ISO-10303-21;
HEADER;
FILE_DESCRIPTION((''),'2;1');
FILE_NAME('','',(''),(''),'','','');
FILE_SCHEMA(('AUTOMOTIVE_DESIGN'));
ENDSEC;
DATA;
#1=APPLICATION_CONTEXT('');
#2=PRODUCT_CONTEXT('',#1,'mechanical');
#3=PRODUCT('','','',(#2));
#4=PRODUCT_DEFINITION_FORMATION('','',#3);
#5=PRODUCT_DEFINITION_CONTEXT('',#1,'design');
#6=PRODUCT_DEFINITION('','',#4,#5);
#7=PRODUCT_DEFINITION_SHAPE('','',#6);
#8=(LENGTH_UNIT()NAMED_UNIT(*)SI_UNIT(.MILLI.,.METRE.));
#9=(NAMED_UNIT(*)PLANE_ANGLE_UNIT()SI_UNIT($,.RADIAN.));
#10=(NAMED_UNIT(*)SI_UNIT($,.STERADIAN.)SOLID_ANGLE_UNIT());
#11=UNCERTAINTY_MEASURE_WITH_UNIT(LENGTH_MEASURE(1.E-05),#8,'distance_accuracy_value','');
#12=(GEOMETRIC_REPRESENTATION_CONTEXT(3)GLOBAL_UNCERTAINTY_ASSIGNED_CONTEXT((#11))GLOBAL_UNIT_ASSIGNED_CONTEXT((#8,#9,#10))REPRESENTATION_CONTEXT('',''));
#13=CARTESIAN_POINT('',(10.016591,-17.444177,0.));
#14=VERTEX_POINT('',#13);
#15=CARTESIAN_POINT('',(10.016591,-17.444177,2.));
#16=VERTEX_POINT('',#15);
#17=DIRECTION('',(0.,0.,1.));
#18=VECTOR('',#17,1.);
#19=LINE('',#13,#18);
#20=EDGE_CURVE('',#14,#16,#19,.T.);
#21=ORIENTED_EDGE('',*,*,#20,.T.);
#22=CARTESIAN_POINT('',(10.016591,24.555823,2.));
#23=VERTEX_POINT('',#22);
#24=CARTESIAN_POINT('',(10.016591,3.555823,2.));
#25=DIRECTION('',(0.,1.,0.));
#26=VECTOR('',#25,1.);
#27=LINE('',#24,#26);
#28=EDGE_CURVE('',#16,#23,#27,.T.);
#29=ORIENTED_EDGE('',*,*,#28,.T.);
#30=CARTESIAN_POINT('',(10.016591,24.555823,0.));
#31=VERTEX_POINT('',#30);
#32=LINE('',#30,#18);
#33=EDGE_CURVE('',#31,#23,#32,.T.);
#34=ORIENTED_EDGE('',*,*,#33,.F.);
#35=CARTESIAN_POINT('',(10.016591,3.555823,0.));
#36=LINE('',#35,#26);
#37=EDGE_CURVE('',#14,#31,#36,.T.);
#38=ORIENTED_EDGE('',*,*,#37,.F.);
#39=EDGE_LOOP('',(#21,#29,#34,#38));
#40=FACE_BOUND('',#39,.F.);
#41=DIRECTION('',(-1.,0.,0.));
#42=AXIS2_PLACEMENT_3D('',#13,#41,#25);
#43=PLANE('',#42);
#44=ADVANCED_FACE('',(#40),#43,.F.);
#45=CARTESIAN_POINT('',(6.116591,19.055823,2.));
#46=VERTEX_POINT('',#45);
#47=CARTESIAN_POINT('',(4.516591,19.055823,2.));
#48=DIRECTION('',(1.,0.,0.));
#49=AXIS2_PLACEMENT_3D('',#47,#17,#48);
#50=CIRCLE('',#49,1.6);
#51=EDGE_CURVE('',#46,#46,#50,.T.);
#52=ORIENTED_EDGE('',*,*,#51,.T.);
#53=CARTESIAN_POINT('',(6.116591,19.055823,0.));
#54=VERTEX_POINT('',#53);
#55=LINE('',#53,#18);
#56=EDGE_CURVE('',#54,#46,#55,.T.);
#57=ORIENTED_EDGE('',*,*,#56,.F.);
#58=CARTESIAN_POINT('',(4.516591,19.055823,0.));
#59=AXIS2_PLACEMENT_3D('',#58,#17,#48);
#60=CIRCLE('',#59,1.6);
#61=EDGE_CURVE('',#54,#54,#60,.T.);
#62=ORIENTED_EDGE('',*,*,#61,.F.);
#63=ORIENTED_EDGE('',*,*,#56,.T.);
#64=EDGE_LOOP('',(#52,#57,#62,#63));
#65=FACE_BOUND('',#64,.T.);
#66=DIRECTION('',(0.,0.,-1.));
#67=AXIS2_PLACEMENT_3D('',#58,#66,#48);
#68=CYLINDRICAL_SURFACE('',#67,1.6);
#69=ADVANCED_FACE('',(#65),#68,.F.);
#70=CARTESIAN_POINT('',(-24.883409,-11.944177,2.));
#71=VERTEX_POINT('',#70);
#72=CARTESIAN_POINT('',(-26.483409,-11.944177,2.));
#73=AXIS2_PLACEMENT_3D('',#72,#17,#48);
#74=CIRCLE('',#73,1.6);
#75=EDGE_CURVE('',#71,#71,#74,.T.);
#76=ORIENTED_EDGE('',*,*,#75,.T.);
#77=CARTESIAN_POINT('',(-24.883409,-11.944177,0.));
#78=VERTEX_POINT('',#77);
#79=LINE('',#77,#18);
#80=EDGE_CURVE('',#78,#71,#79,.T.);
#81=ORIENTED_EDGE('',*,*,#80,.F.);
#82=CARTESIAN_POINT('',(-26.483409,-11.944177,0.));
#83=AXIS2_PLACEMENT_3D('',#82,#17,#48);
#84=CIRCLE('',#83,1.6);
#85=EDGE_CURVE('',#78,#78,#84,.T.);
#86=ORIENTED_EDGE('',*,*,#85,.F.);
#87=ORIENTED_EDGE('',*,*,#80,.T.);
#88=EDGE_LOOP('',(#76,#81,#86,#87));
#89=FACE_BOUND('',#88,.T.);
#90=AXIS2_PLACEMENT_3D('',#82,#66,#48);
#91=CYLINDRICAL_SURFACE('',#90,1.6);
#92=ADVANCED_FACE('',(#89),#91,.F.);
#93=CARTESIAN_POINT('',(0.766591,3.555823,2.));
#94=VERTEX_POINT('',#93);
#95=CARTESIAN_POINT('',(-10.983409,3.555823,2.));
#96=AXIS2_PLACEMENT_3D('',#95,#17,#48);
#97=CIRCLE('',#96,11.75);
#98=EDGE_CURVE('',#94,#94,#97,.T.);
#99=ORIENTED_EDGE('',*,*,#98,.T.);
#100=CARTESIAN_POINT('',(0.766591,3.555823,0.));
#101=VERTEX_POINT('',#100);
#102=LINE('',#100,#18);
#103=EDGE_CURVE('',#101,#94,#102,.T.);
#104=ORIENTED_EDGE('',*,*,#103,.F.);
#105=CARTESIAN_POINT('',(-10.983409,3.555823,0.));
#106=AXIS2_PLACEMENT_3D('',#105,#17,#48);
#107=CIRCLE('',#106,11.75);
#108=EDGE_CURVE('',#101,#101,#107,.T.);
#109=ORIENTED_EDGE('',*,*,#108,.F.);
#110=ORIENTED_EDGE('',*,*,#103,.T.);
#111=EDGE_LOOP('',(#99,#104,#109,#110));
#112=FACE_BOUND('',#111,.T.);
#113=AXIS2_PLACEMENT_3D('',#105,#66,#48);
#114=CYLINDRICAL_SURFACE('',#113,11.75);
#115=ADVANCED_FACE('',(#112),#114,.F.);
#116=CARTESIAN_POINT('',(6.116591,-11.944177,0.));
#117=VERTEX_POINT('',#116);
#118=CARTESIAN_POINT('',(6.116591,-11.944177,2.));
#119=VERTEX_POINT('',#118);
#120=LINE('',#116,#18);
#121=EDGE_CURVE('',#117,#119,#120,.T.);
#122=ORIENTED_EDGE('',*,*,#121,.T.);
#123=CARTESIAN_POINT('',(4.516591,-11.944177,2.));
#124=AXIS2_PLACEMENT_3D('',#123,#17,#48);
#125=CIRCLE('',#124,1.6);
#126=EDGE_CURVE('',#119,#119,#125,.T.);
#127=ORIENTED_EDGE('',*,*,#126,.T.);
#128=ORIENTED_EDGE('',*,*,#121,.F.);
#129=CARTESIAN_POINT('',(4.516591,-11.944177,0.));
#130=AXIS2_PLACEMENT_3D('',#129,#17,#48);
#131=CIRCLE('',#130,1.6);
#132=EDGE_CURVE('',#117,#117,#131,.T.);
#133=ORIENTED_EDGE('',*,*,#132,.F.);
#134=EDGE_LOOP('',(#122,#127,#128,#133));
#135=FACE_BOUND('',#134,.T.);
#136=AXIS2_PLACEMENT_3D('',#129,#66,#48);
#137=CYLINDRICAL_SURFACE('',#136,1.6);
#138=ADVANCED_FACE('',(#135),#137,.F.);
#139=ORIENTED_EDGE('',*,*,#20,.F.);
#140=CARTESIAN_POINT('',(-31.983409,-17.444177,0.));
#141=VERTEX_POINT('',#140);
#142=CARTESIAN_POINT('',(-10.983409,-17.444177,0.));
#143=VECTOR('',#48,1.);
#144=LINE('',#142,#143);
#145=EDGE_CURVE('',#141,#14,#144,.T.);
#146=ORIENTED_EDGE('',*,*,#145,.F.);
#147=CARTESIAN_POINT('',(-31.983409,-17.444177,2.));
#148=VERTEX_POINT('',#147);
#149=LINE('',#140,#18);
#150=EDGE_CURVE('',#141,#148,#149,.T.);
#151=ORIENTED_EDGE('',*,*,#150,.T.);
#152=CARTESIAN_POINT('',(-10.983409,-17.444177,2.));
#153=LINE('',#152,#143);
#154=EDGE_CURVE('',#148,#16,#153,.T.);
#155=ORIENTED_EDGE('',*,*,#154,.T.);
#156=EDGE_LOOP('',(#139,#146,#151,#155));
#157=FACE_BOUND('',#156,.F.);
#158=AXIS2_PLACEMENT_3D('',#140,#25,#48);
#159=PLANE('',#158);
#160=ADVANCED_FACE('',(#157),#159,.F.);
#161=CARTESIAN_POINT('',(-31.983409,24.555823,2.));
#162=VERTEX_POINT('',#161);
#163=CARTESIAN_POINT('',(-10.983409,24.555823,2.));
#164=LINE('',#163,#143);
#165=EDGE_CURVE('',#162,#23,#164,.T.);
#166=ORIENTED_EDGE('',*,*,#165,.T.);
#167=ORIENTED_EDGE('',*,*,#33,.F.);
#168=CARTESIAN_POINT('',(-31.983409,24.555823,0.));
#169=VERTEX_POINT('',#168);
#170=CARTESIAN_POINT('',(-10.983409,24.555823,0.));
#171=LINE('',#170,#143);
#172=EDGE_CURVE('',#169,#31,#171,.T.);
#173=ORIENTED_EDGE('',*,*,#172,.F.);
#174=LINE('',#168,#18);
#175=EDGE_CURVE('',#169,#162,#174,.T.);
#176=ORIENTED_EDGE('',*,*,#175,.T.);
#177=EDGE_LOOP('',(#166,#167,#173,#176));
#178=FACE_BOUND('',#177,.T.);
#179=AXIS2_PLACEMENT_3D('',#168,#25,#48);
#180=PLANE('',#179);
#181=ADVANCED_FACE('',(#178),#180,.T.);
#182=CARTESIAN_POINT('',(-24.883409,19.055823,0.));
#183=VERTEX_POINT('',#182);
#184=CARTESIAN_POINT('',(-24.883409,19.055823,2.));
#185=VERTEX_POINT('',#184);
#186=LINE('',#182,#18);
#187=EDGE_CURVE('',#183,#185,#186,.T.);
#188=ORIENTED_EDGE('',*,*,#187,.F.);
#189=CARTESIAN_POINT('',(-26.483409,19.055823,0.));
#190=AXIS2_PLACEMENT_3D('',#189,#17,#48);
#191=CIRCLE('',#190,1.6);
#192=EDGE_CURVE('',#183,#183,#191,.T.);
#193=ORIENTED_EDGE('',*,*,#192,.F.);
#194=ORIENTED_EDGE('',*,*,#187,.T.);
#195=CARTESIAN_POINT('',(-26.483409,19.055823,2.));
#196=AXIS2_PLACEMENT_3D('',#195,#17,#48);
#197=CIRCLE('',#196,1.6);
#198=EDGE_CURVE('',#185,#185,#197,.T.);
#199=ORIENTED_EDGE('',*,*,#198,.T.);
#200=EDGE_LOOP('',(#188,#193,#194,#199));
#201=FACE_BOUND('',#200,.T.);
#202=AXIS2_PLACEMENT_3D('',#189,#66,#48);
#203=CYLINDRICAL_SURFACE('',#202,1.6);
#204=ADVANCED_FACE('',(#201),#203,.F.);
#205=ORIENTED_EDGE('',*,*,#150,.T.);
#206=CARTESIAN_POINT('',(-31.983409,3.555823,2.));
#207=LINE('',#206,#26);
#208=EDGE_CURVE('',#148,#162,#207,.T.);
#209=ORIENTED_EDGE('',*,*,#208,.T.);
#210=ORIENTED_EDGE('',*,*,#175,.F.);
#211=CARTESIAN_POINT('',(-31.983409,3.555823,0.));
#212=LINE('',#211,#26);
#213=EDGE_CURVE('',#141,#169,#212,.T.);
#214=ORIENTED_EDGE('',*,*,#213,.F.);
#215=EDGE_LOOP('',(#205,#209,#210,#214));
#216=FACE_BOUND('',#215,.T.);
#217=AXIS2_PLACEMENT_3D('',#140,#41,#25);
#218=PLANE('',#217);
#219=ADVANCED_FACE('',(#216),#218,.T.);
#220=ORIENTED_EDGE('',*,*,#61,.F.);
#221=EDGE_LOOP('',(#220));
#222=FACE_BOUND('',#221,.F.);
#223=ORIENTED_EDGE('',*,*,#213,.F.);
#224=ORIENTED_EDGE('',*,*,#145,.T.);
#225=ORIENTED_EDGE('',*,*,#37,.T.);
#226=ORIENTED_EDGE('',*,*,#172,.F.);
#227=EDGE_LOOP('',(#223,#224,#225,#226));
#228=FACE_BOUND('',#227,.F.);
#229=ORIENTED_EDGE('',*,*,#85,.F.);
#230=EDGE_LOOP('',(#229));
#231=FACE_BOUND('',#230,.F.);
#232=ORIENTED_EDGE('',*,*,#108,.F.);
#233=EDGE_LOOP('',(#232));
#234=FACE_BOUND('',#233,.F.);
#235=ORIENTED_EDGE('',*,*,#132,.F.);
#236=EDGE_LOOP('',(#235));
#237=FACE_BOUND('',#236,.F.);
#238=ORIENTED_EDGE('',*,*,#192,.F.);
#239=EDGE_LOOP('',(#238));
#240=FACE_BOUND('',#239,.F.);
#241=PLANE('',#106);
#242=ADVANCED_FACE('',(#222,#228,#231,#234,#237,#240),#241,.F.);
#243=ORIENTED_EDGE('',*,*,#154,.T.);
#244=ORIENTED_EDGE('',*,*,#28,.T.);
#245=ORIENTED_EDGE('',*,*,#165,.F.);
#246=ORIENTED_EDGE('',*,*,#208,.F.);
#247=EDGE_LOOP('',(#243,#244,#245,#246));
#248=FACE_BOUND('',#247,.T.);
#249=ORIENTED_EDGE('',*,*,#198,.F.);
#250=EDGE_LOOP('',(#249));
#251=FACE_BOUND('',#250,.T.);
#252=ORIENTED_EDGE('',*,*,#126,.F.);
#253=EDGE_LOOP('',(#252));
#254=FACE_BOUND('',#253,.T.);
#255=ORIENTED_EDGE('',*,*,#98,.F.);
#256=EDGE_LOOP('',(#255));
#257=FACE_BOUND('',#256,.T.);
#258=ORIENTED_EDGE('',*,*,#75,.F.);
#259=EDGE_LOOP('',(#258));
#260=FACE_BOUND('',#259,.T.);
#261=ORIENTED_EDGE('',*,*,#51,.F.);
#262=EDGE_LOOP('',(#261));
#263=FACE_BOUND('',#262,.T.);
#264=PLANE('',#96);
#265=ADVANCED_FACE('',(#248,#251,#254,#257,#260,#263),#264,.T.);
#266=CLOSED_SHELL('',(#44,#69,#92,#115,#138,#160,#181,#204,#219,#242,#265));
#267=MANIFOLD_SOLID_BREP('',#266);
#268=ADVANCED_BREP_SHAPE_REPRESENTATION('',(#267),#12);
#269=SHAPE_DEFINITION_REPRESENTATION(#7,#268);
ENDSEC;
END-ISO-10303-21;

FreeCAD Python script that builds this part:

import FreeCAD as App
import Part
import Sketcher

V = App.Vector
Q = App.Units.Quantity

doc = App.newDocument("Part")
params = doc.addObject("Spreadsheet::Sheet", "Params")
for row, (alias, value) in enumerate([
    ("sketch1_diameter", "3.2 mm"),
    ("sketch1_diameter2", "23.5 mm"),
    ("sketch1_width", "42 mm"),
    ("pad1_length", "2 mm"),
], start=1):
    params.set(f"A{row}", alias)
    params.set(f"B{row}", "=" + value)
    params.setAlias(f"B{row}", alias)

body = doc.addObject("PartDesign::Body", "Body")

sketch1 = body.newObject("Sketcher::SketchObject", "Sketch")
sketch1.AttachmentSupport = (doc.getObject("XY_Plane"), [""])
sketch1.MapMode = "FlatFace"
sketch1.addGeometry(Part.LineSegment(V(-32, 24.6, 0), V(-32, -17.4, 0)), False)
sketch1.addGeometry(Part.LineSegment(V(-32, -17.4, 0), V(10, -17.4, 0)), False)
sketch1.addGeometry(Part.LineSegment(V(10, -17.4, 0), V(10, 24.6, 0)), False)
sketch1.addGeometry(Part.LineSegment(V(10, 24.6, 0), V(-32, 24.6, 0)), False)
sketch1.addGeometry(Part.Circle(V(-26.5, -11.9, 0), V(0, 0, 1), 1.6), False)
sketch1.addGeometry(Part.Circle(V(4.5, -11.9, 0), V(0, 0, 1), 1.6), False)
sketch1.addGeometry(Part.Circle(V(-26.5, 19.1, 0), V(0, 0, 1), 1.6), False)
sketch1.addGeometry(Part.Circle(V(-11, 3.6, 0), V(0, 0, 1), 11.8), False)
sketch1.addGeometry(Part.Circle(V(4.5, 19.1, 0), V(0, 0, 1), 1.6), False)
sketch1.addConstraint(Sketcher.Constraint("Coincident", 0, 2, 1, 1))
sketch1.addConstraint(Sketcher.Constraint("Coincident", 1, 2, 2, 1))
sketch1.addConstraint(Sketcher.Constraint("Coincident", 2, 2, 3, 1))
sketch1.addConstraint(Sketcher.Constraint("Coincident", 3, 2, 0, 1))
sketch1.addConstraint(Sketcher.Constraint("Vertical", 0))
sketch1.addConstraint(Sketcher.Constraint("Horizontal", 1))
sketch1.addConstraint(Sketcher.Constraint("Vertical", 2))
sketch1.addConstraint(Sketcher.Constraint("Horizontal", 3))
sketch1.addConstraint(Sketcher.Constraint("Equal", 4, 5))
sketch1.addConstraint(Sketcher.Constraint("Equal", 5, 6))
sketch1.addConstraint(Sketcher.Constraint("Equal", 6, 8))
sketch1.addConstraint(Sketcher.Constraint("Horizontal", 4, 3, 5, 3))
sketch1.addConstraint(Sketcher.Constraint("Horizontal", 6, 3, 8, 3))
sketch1.addConstraint(Sketcher.Constraint("Vertical", 4, 3, 6, 3))
sketch1.addConstraint(Sketcher.Constraint("Vertical", 5, 3, 8, 3))
sketch1.addConstraint(Sketcher.Constraint("Equal", 3, 0))
sketch1.addConstraint(Sketcher.Constraint("Diameter", 4, Q("3.2 mm")))
sketch1.addConstraint(Sketcher.Constraint("Diameter", 7, Q("23.5 mm")))
sketch1.addConstraint(Sketcher.Constraint("DistanceX", 1, 1, 1, 2, Q("42 mm")))
sketch1.addConstraint(Sketcher.Constraint("DistanceX", 4, 3, 5, 3, Q("31 mm")))
sketch1.addConstraint(Sketcher.Constraint("DistanceY", 4, 3, 6, 3, Q("31 mm")))
sketch1.addConstraint(Sketcher.Constraint("DistanceX", 0, 2, 7, 3, Q("21 mm")))
sketch1.addConstraint(Sketcher.Constraint("DistanceY", 0, 2, 7, 3, Q("21 mm")))
sketch1.addConstraint(Sketcher.Constraint("DistanceX", 7, 3, 5, 3, Q("15.5 mm")))
sketch1.addConstraint(Sketcher.Constraint("DistanceY", 5, 3, 7, 3, Q("15.5 mm")))
sketch1.addConstraint(Sketcher.Constraint("DistanceX", 4, 3, -1, 1, Q("26.483409 mm")))
sketch1.addConstraint(Sketcher.Constraint("DistanceY", 4, 3, -1, 1, Q("11.944177 mm")))
sketch1.setExpression("Constraints[16]", "Params.sketch1_diameter")
sketch1.setExpression("Constraints[17]", "Params.sketch1_diameter2")
sketch1.setExpression("Constraints[18]", "Params.sketch1_width")
pad1 = body.newObject("PartDesign::Pad", "Pad")
pad1.Profile = sketch1
pad1.setExpression("Length", "Params.pad1_length")

doc.recompute()
